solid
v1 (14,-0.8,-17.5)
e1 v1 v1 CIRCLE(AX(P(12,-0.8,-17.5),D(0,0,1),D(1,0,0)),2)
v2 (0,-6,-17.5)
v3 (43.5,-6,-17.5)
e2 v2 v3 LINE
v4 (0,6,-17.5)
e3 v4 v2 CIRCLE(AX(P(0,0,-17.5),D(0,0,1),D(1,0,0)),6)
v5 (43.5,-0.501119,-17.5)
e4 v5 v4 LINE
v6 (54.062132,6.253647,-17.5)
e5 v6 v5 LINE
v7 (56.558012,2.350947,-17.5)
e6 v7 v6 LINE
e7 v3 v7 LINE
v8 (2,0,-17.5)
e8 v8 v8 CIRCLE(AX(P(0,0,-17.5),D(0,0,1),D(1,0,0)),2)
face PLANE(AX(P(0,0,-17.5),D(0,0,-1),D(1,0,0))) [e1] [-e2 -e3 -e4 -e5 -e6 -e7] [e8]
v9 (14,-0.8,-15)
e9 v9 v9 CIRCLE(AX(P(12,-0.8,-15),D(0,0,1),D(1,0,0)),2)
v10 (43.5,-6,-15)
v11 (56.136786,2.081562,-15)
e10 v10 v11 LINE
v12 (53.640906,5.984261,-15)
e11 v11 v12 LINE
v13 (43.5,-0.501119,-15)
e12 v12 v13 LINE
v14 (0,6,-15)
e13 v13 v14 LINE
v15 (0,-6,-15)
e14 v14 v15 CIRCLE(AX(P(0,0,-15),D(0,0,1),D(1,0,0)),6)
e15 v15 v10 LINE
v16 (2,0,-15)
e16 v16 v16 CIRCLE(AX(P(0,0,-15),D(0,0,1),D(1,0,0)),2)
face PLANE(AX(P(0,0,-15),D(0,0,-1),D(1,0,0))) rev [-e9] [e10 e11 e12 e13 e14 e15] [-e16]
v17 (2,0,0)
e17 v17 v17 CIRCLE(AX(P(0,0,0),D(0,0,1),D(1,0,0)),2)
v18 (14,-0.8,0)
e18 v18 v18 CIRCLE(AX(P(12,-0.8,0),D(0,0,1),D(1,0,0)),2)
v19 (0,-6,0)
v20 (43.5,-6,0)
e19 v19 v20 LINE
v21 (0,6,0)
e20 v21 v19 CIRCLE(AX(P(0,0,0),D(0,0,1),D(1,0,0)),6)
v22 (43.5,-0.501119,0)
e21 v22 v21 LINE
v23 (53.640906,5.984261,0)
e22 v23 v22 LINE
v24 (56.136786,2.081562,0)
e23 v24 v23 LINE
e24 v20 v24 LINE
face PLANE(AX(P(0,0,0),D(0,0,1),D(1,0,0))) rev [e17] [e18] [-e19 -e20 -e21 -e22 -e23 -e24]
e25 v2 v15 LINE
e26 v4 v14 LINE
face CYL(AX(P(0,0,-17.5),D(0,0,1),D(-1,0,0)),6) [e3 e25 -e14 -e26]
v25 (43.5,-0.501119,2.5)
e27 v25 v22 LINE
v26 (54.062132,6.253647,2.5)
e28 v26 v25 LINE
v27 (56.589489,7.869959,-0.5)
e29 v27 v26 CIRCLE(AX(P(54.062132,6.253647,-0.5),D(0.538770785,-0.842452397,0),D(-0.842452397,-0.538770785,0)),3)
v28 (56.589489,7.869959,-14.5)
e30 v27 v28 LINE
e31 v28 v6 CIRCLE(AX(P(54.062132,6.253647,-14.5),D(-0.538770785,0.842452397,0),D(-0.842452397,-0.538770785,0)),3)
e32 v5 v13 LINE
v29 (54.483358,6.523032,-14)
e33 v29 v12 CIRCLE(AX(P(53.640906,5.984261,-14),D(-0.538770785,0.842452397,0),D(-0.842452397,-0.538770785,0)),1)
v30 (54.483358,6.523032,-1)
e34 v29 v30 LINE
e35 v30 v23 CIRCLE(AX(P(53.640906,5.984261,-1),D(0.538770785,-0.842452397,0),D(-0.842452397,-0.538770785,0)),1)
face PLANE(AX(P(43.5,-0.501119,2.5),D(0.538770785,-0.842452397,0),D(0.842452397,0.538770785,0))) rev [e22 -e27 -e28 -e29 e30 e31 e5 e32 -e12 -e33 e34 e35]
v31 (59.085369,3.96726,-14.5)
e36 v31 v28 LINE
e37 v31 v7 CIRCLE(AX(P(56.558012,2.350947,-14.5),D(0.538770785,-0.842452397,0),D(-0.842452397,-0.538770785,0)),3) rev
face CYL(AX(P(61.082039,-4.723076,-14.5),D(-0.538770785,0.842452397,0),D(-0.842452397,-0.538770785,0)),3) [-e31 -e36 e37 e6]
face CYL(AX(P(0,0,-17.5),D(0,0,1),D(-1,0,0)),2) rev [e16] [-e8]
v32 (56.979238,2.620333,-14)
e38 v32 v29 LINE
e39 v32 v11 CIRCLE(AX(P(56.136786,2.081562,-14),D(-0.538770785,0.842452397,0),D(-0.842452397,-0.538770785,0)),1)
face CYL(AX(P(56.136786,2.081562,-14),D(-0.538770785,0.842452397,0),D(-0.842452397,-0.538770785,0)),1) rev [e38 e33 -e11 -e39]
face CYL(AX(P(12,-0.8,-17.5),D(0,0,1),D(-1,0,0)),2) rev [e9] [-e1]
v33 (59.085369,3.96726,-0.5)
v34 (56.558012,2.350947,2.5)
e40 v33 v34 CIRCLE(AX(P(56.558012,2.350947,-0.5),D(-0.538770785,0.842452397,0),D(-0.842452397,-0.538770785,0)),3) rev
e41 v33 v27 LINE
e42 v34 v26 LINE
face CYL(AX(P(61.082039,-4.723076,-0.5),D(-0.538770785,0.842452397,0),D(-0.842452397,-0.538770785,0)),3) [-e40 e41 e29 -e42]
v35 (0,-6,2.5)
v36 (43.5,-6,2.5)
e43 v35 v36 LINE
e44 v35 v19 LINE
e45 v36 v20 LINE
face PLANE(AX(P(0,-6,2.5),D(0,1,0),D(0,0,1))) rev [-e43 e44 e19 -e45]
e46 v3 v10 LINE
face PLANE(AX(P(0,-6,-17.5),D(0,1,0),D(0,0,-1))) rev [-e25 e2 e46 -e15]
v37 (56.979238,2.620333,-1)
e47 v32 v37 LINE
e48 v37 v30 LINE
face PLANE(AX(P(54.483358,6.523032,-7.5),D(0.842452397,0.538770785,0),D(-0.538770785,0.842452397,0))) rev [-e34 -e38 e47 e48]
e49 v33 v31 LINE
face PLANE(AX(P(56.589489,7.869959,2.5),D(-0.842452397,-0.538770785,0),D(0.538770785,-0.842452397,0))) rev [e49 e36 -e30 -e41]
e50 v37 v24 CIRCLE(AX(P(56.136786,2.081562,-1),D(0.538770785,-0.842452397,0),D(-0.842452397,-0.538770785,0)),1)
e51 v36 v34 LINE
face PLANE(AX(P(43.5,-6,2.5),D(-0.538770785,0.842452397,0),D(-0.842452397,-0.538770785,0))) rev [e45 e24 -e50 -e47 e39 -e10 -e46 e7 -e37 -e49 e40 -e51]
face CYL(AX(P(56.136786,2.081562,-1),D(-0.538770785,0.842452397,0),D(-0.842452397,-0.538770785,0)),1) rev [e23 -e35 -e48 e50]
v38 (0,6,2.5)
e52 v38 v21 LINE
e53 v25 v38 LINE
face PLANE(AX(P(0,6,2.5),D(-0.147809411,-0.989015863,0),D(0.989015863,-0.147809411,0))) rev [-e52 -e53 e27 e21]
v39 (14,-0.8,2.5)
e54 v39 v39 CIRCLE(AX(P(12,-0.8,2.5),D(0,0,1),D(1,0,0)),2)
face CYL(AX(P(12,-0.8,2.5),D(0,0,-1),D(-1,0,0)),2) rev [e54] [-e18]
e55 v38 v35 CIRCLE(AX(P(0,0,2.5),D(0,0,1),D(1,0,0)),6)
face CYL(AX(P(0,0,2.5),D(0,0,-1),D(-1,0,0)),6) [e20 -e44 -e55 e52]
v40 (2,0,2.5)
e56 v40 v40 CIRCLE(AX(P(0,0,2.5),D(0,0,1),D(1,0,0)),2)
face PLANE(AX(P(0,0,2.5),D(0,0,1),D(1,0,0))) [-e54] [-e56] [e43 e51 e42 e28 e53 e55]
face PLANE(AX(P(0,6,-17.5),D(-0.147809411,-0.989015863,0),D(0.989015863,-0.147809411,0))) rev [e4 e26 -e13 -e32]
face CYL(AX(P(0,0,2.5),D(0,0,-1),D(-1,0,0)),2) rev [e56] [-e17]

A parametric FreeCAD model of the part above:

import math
import FreeCAD as App
import Part
import Sketcher
Q = App.Units.Quantity


def add_polygon(sketch, points):
    """Adds a closed chain of lines whose ends are joined by coincident constraints."""
    first, n = sketch.GeometryCount, len(points)
    for a, b in zip(points, points[1:] + points[:1]):
        sketch.addGeometry(Part.LineSegment(App.Vector(*a, 0), App.Vector(*b, 0)), False)
    for i in range(n):
        sketch.addConstraint(Sketcher.Constraint("Coincident", first + i, 2, first + (i + 1) % n, 1))

doc = App.newDocument("Part")
body = doc.addObject("PartDesign::Body", "Body")

sketch1 = doc.addObject("Sketcher::SketchObject", "Sketch")
body.addObject(sketch1)
sketch1.AttachmentSupport = (doc.XY_Plane, [""])
sketch1.MapMode = "FlatFace"
sketch1.addGeometry(Part.LineSegment(App.Vector(0, -6, 0), App.Vector(43.5, -6, 0)), False)
sketch1.addGeometry(Part.LineSegment(App.Vector(43.5, -6, 0), App.Vector(59.085369, 3.96726, 0)), False)
sketch1.addGeometry(Part.LineSegment(App.Vector(59.085369, 3.96726, 0), App.Vector(56.589489, 7.869959, 0)), False)
sketch1.addGeometry(Part.LineSegment(App.Vector(56.589489, 7.869959, 0), App.Vector(43.5, -0.501119, 0)), False)
sketch1.addGeometry(Part.LineSegment(App.Vector(43.5, -0.501119, 0), App.Vector(0, 6, 0)), False)
sketch1.addGeometry(Part.ArcOfCircle(Part.Circle(App.Vector(0, 0, 0), App.Vector(0, 0, 1), 6), math.radians(90), math.radians(270)), False)
sketch1.addGeometry(Part.Circle(App.Vector(12, -0.8, 0), App.Vector(0, 0, 1), 2), False)
sketch1.addGeometry(Part.Circle(App.Vector(0, 0, 0), App.Vector(0, 0, 1), 2), False)
sketch1.addConstraint(Sketcher.Constraint("Coincident", 0, 2, 1, 1))
sketch1.addConstraint(Sketcher.Constraint("Coincident", 1, 2, 2, 1))
sketch1.addConstraint(Sketcher.Constraint("Coincident", 2, 2, 3, 1))
sketch1.addConstraint(Sketcher.Constraint("Coincident", 3, 2, 4, 1))
sketch1.addConstraint(Sketcher.Constraint("Coincident", 4, 2, 5, 1))
sketch1.addConstraint(Sketcher.Constraint("Tangent", 5, 2, 0, 1))
sketch1.addConstraint(Sketcher.Constraint("Horizontal", 0))
sketch1.addConstraint(Sketcher.Constraint("Coincident", 5, 3, -1, 1))
sketch1.addConstraint(Sketcher.Constraint("Coincident", 7, 3, -1, 1))
sketch1.addConstraint(Sketcher.Constraint("Equal", 6, 7))
sketch1.addConstraint(Sketcher.Constraint("PointOnObject", 4, 2, -2))
sketch1.addConstraint(Sketcher.Constraint("Perpendicular", 1, 2))
sketch1.addConstraint(Sketcher.Constraint("Perpendicular", 2, 3))
sketch1.addConstraint(Sketcher.Constraint("Vertical", 0, 2, 3, 2))
sketch1.addConstraint(Sketcher.Constraint("Diameter", 6, Q("4 mm")))
sketch1.addConstraint(Sketcher.Constraint("Radius", 5, Q("6 mm")))
sketch1.addConstraint(Sketcher.Constraint("DistanceX", 0, 1, 0, 2, Q("43.5 mm")))
sketch1.addConstraint(Sketcher.Constraint("DistanceX", -1, 1, 6, 3, Q("12 mm")))
sketch1.addConstraint(Sketcher.Constraint("Angle", 1, Q("32.6 deg")))
sketch1.addConstraint(Sketcher.Constraint("Angle", 4, Q("171.5 deg")))
sketch1.addConstraint(Sketcher.Constraint("Distance", 1, Q("18.5 mm")))
sketch1.addConstraint(Sketcher.Constraint("DistanceY", 6, 3, -1, 1, Q("0.8 mm")))
pad1 = doc.addObject("PartDesign::Pad", "Pad")
body.addObject(pad1)
pad1.Profile = sketch1
pad1.Length = 2.5

sketch2 = doc.addObject("Sketcher::SketchObject", "Sketch001")
body.addObject(sketch2)
sketch2.AttachmentSupport = (doc.XY_Plane, [""])
sketch2.MapMode = "FlatFace"
add_polygon(sketch2, [(56.589489, 7.869959), (59.085369, 3.96726), (56.979238, 2.620333), (54.483358, 6.523032)])
sketch2.addConstraint(Sketcher.Constraint("Perpendicular", 0, 1))
sketch2.addConstraint(Sketcher.Constraint("Perpendicular", 1, 2))
sketch2.addConstraint(Sketcher.Constraint("Perpendicular", 2, 3))
sketch2.addConstraint(Sketcher.Constraint("Angle", 0, Q("-57.4 deg")))
sketch2.addConstraint(Sketcher.Constraint("Distance", 1, Q("2.5 mm")))
sketch2.addConstraint(Sketcher.Constraint("DistanceY", 1, 2, 2, 2, Q("3.902699 mm")))
sketch2.addConstraint(Sketcher.Constraint("DistanceX", -1, 1, 0, 2, Q("59.085369 mm")))
sketch2.addConstraint(Sketcher.Constraint("DistanceY", -1, 1, 0, 2, Q("3.96726 mm")))
pad2 = doc.addObject("PartDesign::Pad", "Pad001")
body.addObject(pad2)
pad2.Profile = sketch2
pad2.Length = 7.5
pad2.Reversed = True

sketch3 = doc.addObject("Sketcher::SketchObject", "Sketch002")
body.addObject(sketch3)
sketch3.Placement = App.Placement(App.Vector(12.854369, -20.099817, 0), App.Rotation(App.Vector(0.842452397, 0.538770785, 0), App.Vector(0, 0, -1), App.Vector(-0.538770785, 0.842452397, 0), "ZXY"))
sketch3.addGeometry(Part.LineSegment(App.Vector(51.914055, -2.5, 0), App.Vector(51.914055, 0.5, 0)), False)
sketch3.addGeometry(Part.ArcOfCircle(Part.Circle(App.Vector(48.914055, 0.5, 0), App.Vector(0, 0, 1), 3), math.radians(-90), math.radians(0)), False)
sketch3.addGeometry(Part.LineSegment(App.Vector(48.914055, -2.5, 0), App.Vector(51.914055, -2.5, 0)), False)
sketch3.addConstraint(Sketcher.Constraint("Tangent", 0, 2, 1, 2))
sketch3.addConstraint(Sketcher.Constraint("Tangent", 1, 1, 2, 1))
sketch3.addConstraint(Sketcher.Constraint("Coincident", 2, 2, 0, 1))
sketch3.addConstraint(Sketcher.Constraint("Vertical", 0))
sketch3.addConstraint(Sketcher.Constraint("Horizontal", 2))
sketch3.addConstraint(Sketcher.Constraint("Radius", 1, Q("3 mm")))
sketch3.addConstraint(Sketcher.Constraint("DistanceY", -1, 1, 1, 3, Q("0.5 mm")))
sketch3.addConstraint(Sketcher.Constraint("DistanceX", -1, 1, 1, 3, Q("48.914055 mm")))
pocket1 = doc.addObject("PartDesign::Pocket", "Pocket")
body.addObject(pocket1)
pocket1.Profile = sketch3
pocket1.Type = "ThroughAll"

sketch4 = doc.addObject("Sketcher::SketchObject", "Sketch003")
body.addObject(sketch4)
sketch4.Placement = App.Placement(App.Vector(12.854369, -20.099817, 0), App.Rotation(App.Vector(0.842452397, 0.538770785, 0), App.Vector(0, 0, -1), App.Vector(-0.538770785, 0.842452397, 0), "ZXY"))
sketch4.addGeometry(Part.LineSegment(App.Vector(49.414055, 0, 0), App.Vector(49.414055, 1, 0)), False)
sketch4.addGeometry(Part.ArcOfCircle(Part.Circle(App.Vector(48.414055, 1, 0), App.Vector(0, 0, 1), 1), math.radians(-90), math.radians(0)), False)
sketch4.addGeometry(Part.LineSegment(App.Vector(48.414055, 0, 0), App.Vector(49.414055, 0, 0)), False)
sketch4.addConstraint(Sketcher.Constraint("Tangent", 0, 2, 1, 2))
sketch4.addConstraint(Sketcher.Constraint("Tangent", 1, 1, 2, 1))
sketch4.addConstraint(Sketcher.Constraint("Coincident", 2, 2, 0, 1))
sketch4.addConstraint(Sketcher.Constraint("Vertical", 0))
sketch4.addConstraint(Sketcher.Constraint("Horizontal", 2))
sketch4.addConstraint(Sketcher.Constraint("PointOnObject", 1, 1, -1))
sketch4.addConstraint(Sketcher.Constraint("Radius", 1, Q("1 mm")))
sketch4.addConstraint(Sketcher.Constraint("DistanceX", -1, 1, 1, 3, Q("48.414055 mm")))
pad3 = doc.addObject("PartDesign::Pad", "Pad002")
body.addObject(pad3)
pad3.Profile = sketch4
pad3.Length = 4.632546
pad3.Reversed = True
body2 = doc.addObject("PartDesign::Body", "Body001")
doc.recompute()

body2.BaseFeature = body
doc.recompute()

mirroring = doc.addObject("Part::Mirroring", "Mirroring")
mirroring.Source = body
mirroring.Base = App.Vector(0, 0, -7.5)
mirroring.Normal = App.Vector(0, 0, 1)
body3 = doc.addObject("PartDesign::Body", "Body002")
body3.BaseFeature = mirroring
boolean = doc.addObject("PartDesign::Boolean", "Boolean")
body2.addObject(boolean)
boolean.Type = "Fuse"
boolean.addObjects([body3])
doc.recompute()
mirroring.Visibility = False

doc.recompute()
